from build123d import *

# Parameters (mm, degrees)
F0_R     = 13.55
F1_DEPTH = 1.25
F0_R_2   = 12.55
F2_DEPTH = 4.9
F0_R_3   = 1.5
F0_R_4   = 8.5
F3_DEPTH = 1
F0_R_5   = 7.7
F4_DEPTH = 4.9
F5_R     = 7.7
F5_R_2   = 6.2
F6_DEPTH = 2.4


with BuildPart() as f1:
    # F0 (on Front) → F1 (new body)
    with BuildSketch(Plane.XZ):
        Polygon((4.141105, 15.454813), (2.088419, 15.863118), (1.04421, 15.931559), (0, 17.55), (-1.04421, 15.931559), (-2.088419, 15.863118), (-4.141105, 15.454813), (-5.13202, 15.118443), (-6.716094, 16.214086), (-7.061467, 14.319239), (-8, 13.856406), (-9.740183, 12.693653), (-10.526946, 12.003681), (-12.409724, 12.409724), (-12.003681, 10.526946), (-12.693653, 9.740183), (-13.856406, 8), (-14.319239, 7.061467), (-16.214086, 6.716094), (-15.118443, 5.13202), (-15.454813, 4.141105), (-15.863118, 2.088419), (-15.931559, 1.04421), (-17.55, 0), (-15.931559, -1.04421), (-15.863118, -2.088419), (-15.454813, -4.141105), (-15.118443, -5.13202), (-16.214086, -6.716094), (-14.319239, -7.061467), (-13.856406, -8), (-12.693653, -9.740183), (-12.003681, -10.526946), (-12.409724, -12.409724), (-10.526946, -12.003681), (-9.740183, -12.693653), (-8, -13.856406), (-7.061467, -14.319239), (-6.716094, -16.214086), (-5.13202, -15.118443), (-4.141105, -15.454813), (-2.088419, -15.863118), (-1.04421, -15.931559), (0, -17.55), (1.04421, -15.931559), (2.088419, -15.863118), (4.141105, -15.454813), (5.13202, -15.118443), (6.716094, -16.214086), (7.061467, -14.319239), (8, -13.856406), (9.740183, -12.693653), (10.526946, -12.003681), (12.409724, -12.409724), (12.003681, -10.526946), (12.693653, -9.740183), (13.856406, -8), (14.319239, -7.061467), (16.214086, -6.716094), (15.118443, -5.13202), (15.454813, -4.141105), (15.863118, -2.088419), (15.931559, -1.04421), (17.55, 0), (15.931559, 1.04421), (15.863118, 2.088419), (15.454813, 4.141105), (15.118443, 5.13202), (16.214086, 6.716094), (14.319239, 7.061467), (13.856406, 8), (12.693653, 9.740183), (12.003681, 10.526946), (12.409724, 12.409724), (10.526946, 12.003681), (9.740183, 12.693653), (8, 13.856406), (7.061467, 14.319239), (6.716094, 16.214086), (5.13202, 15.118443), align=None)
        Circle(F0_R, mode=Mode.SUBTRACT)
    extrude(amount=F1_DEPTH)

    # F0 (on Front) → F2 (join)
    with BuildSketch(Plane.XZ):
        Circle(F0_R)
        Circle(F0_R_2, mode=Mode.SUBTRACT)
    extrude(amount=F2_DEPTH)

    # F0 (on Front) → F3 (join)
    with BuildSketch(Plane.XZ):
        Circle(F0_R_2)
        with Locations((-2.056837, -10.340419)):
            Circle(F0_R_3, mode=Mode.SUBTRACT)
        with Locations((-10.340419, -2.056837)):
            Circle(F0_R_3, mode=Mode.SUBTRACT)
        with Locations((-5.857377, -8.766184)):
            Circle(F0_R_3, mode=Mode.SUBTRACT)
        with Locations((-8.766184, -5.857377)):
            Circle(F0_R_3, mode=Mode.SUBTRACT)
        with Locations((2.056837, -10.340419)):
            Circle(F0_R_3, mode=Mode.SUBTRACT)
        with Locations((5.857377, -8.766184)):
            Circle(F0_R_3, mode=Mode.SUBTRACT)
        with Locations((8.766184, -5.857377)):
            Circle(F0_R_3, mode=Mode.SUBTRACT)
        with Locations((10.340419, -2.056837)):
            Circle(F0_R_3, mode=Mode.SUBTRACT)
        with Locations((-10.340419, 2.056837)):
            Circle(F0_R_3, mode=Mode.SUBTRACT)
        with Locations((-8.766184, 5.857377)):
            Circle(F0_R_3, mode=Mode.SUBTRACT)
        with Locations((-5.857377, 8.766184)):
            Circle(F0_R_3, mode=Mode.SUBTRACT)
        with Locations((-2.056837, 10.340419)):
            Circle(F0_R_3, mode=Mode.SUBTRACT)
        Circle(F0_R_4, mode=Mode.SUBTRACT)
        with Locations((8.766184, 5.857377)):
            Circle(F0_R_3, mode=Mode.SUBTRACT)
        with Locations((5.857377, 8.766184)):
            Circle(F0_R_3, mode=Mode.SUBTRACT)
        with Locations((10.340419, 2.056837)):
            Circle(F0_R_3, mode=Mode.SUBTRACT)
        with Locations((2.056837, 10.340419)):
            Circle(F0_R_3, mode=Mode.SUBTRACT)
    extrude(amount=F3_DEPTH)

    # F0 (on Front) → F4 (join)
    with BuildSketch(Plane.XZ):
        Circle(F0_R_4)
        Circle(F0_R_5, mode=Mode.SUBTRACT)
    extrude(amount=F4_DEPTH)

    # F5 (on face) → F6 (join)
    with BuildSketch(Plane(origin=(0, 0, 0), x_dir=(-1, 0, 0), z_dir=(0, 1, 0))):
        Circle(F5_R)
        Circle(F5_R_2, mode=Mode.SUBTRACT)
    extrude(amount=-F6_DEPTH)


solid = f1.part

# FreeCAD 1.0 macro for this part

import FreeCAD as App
import Part
import Sketcher
from FreeCAD import Vector
Q = App.Units.Quantity


def add_polygon(sketch, points):
    """Adds a closed chain of lines whose ends are joined by coincident constraints."""
    first, n = sketch.GeometryCount, len(points)
    for a, b in zip(points, points[1:] + points[:1]):
        sketch.addGeometry(Part.LineSegment(App.Vector(*a, 0), App.Vector(*b, 0)), False)
    for i in range(n):
        sketch.addConstraint(Sketcher.Constraint("Coincident", first + i, 2, first + (i + 1) % n, 1))

doc = App.newDocument("Part")
params = doc.addObject("Spreadsheet::Sheet", "Params")
for row, (alias, value) in enumerate([
    ("sketch1_diameter", "27.1 mm"),
    ("pad1_length", "1.25 mm"),
    ("sketch2_diameter", "27.1 mm"),
    ("sketch2_diameter2", "25.1 mm"),
    ("pad2_length", "4.9 mm"),
    ("sketch3_diameter", "3 mm"),
    ("sketch3_diameter2", "17 mm"),
    ("sketch3_diameter3", "25.1 mm"),
    ("pad3_length", "1 mm"),
    ("sketch4_diameter", "17 mm"),
    ("sketch4_diameter2", "15.4 mm"),
    ("pad4_length", "4.9 mm"),
    ("sketch5_diameter", "15.4 mm"),
    ("sketch5_diameter2", "12.4 mm"),
    ("pad5_length", "2.4 mm"),
], start=1):
    params.set(f"A{row}", alias)
    params.set(f"B{row}", "=" + value)
    params.setAlias(f"B{row}", alias)

body = doc.addObject("PartDesign::Body", "Body")

# Sketch on XZ plane
sketch1 = doc.addObject("Sketcher::SketchObject", "Sketch")
body.addObject(sketch1)
sketch1.AttachmentSupport = (doc.XZ_Plane, [""])
sketch1.MapMode = "FlatFace"
add_polygon(sketch1, [(4.1, 15.5), (2.1, 15.9), (1, 15.9), (0, 17.6), (-1, 15.9), (-2.1, 15.9), (-4.1, 15.5), (-5.1, 15.1), (-6.7, 16.2), (-7.1, 14.3), (-8, 13.9), (-9.7, 12.7), (-10.5, 12), (-12.4, 12.4), (-12, 10.5), (-12.7, 9.7), (-13.9, 8), (-14.3, 7.1), (-16.2, 6.7), (-15.1, 5.1), (-15.5, 4.1), (-15.9, 2.1), (-15.9, 1), (-17.6, 0), (-15.9, -1), (-15.9, -2.1), (-15.5, -4.1), (-15.1, -5.1), (-16.2, -6.7), (-14.3, -7.1), (-13.9, -8), (-12.7, -9.7), (-12, -10.5), (-12.4, -12.4), (-10.5, -12), (-9.7, -12.7), (-8, -13.9), (-7.1, -14.3), (-6.7, -16.2), (-5.1, -15.1), (-4.1, -15.5), (-2.1, -15.9), (-1, -15.9), (0, -17.6), (1, -15.9), (2.1, -15.9), (4.1, -15.5), (5.1, -15.1), (6.7, -16.2), (7.1, -14.3), (8, -13.9), (9.7, -12.7), (10.5, -12), (12.4, -12.4), (12, -10.5), (12.7, -9.7), (13.9, -8), (14.3, -7.1), (16.2, -6.7), (15.1, -5.1), (15.5, -4.1), (15.9, -2.1), (15.9, -1), (17.6, 0), (15.9, 1), (15.9, 2.1), (15.5, 4.1), (15.1, 5.1), (16.2, 6.7), (14.3, 7.1), (13.9, 8), (12.7, 9.7), (12, 10.5), (12.4, 12.4), (10.5, 12), (9.7, 12.7), (8, 13.9), (7.1, 14.3), (6.7, 16.2), (5.1, 15.1)])  # lines 0-79
sketch1.addGeometry(Part.Circle(Vector(0, 0, 0), Vector(0, 0, 1), 13.6), False)  # 80
sketch1.addConstraint(Sketcher.Constraint("Coincident", 80, 3, -1, 1))
sketch1.addConstraint(Sketcher.Constraint("Symmetric", 0, 2, 40, 2, -1, 1))
sketch1.addConstraint(Sketcher.Constraint("Symmetric", 1, 2, 41, 2, -1, 1))
sketch1.addConstraint(Sketcher.Constraint("Symmetric", 2, 2, 42, 2, -1, 1))
sketch1.addConstraint(Sketcher.Constraint("Symmetric", 3, 2, 43, 2, -1, 1))
sketch1.addConstraint(Sketcher.Constraint("Symmetric", 4, 2, 44, 2, -1, 1))
sketch1.addConstraint(Sketcher.Constraint("Symmetric", 5, 2, 45, 2, -1, 1))
sketch1.addConstraint(Sketcher.Constraint("Symmetric", 6, 2, 46, 2, -1, 1))
sketch1.addConstraint(Sketcher.Constraint("Symmetric", 7, 2, 47, 2, -1, 1))
sketch1.addConstraint(Sketcher.Constraint("Symmetric", 8, 2, 48, 2, -1, 1))
sketch1.addConstraint(Sketcher.Constraint("Symmetric", 9, 2, 49, 2, -1, 1))
sketch1.addConstraint(Sketcher.Constraint("Symmetric", 10, 2, 50, 2, -1, 1))
sketch1.addConstraint(Sketcher.Constraint("Symmetric", 11, 2, 51, 2, -1, 1))
sketch1.addConstraint(Sketcher.Constraint("Symmetric", 12, 2, 52, 2, -1, 1))
sketch1.addConstraint(Sketcher.Constraint("Symmetric", 13, 2, 53, 2, -1, 1))
sketch1.addConstraint(Sketcher.Constraint("Symmetric", 14, 2, 54, 2, -1, 1))
sketch1.addConstraint(Sketcher.Constraint("Symmetric", 15, 2, 55, 2, -1, 1))
sketch1.addConstraint(Sketcher.Constraint("Symmetric", 16, 2, 56, 2, -1, 1))
sketch1.addConstraint(Sketcher.Constraint("Symmetric", 17, 2, 57, 2, -1, 1))
sketch1.addConstraint(Sketcher.Constraint("Symmetric", 18, 2, 58, 2, -1, 1))
sketch1.addConstraint(Sketcher.Constraint("Symmetric", 19, 2, 59, 2, -1, 1))
sketch1.addConstraint(Sketcher.Constraint("Symmetric", 20, 2, 60, 2, -1, 1))
sketch1.addConstraint(Sketcher.Constraint("Symmetric", 21, 2, 61, 2, -1, 1))
sketch1.addConstraint(Sketcher.Constraint("Symmetric", 22, 2, 62, 2, -1, 1))
sketch1.addConstraint(Sketcher.Constraint("Symmetric", 23, 2, 63, 2, -1, 1))
sketch1.addConstraint(Sketcher.Constraint("Symmetric", 24, 2, 64, 2, -1, 1))
sketch1.addConstraint(Sketcher.Constraint("Symmetric", 25, 2, 65, 2, -1, 1))
sketch1.addConstraint(Sketcher.Constraint("Symmetric", 26, 2, 66, 2, -1, 1))
sketch1.addConstraint(Sketcher.Constraint("Symmetric", 27, 2, 67, 2, -1, 1))
sketch1.addConstraint(Sketcher.Constraint("Symmetric", 28, 2, 68, 2, -1, 1))
sketch1.addConstraint(Sketcher.Constraint("Symmetric", 29, 2, 69, 2, -1, 1))
sketch1.addConstraint(Sketcher.Constraint("Symmetric", 30, 2, 70, 2, -1, 1))
sketch1.addConstraint(Sketcher.Constraint("Symmetric", 31, 2, 71, 2, -1, 1))
sketch1.addConstraint(Sketcher.Constraint("Symmetric", 32, 2, 72, 2, -1, 1))
sketch1.addConstraint(Sketcher.Constraint("Symmetric", 33, 2, 73, 2, -1, 1))
sketch1.addConstraint(Sketcher.Constraint("Symmetric", 34, 2, 74, 2, -1, 1))
sketch1.addConstraint(Sketcher.Constraint("Symmetric", 35, 2, 75, 2, -1, 1))
sketch1.addConstraint(Sketcher.Constraint("Symmetric", 36, 2, 76, 2, -1, 1))
sketch1.addConstraint(Sketcher.Constraint("Symmetric", 37, 2, 77, 2, -1, 1))
sketch1.addConstraint(Sketcher.Constraint("Symmetric", 38, 2, 78, 2, -1, 1))
sketch1.addConstraint(Sketcher.Constraint("Symmetric", 39, 2, 79, 2, -1, 1))
sketch1.addConstraint(Sketcher.Constraint("Symmetric", 1, 2, 3, 2, -2))
sketch1.addConstraint(Sketcher.Constraint("Symmetric", 0, 2, 4, 2, -2))
sketch1.addConstraint(Sketcher.Constraint("Symmetric", 39, 2, 45, 2, -2))
sketch1.addConstraint(Sketcher.Constraint("Symmetric", 38, 2, 46, 2, -2))
sketch1.addConstraint(Sketcher.Constraint("Symmetric", 37, 2, 47, 2, -2))
sketch1.addConstraint(Sketcher.Constraint("Symmetric", 36, 2, 48, 2, -2))
sketch1.addConstraint(Sketcher.Constraint("Symmetric", 35, 2, 49, 2, -2))
sketch1.addConstraint(Sketcher.Constraint("Symmetric", 34, 2, 50, 2, -2))
sketch1.addConstraint(Sketcher.Constraint("Symmetric", 33, 2, 51, 2, -2))
sketch1.addConstraint(Sketcher.Constraint("Symmetric", 32, 2, 52, 2, -2))
sketch1.addConstraint(Sketcher.Constraint("Symmetric", 31, 2, 53, 2, -2))
sketch1.addConstraint(Sketcher.Constraint("Symmetric", 30, 2, 54, 2, -2))
sketch1.addConstraint(Sketcher.Constraint("Symmetric", 29, 2, 55, 2, -2))
sketch1.addConstraint(Sketcher.Constraint("Symmetric", 28, 2, 56, 2, -2))
sketch1.addConstraint(Sketcher.Constraint("Symmetric", 27, 2, 57, 2, -2))
sketch1.addConstraint(Sketcher.Constraint("Symmetric", 26, 2, 58, 2, -2))
sketch1.addConstraint(Sketcher.Constraint("Symmetric", 25, 2, 59, 2, -2))
sketch1.addConstraint(Sketcher.Constraint("Symmetric", 24, 2, 60, 2, -2))
sketch1.addConstraint(Sketcher.Constraint("Symmetric", 23, 2, 61, 2, -2))
sketch1.addConstraint(Sketcher.Constraint("PointOnObject", 2, 2, -2))
sketch1.addConstraint(Sketcher.Constraint("PointOnObject", 22, 2, -1))
sketch1.addConstraint(Sketcher.Constraint("Perpendicular", 0, 20))
sketch1.addConstraint(Sketcher.Constraint("Perpendicular", 1, 21))
sketch1.addConstraint(Sketcher.Constraint("Perpendicular", 2, 22))
sketch1.addConstraint(Sketcher.Constraint("Perpendicular", 6, 26))
sketch1.addConstraint(Sketcher.Constraint("Perpendicular", 7, 27))
sketch1.addConstraint(Sketcher.Constraint("Perpendicular", 8, 28))
sketch1.addConstraint(Sketcher.Constraint("Perpendicular", 9, 29))
sketch1.addConstraint(Sketcher.Constraint("Perpendicular", 10, 30))
sketch1.addConstraint(Sketcher.Constraint("Perpendicular", 11, 31))
sketch1.addConstraint(Sketcher.Constraint("Perpendicular", 12, 32))
sketch1.addConstraint(Sketcher.Constraint("Equal", 4, 6))
sketch1.addConstraint(Sketcher.Constraint("Equal", 3, 7))
sketch1.addConstraint(Sketcher.Constraint("Equal", 7, 8))
sketch1.addConstraint(Sketcher.Constraint("Equal", 6, 9))
sketch1.addConstraint(Sketcher.Constraint("Equal", 5, 10))
sketch1.addConstraint(Sketcher.Constraint("Equal", 9, 11))
sketch1.addConstraint(Sketcher.Constraint("Equal", 8, 12))
sketch1.addConstraint(Sketcher.Constraint("Equal", 12, 13))
sketch1.addConstraint(Sketcher.Constraint("Equal", 11, 14))
sketch1.addConstraint(Sketcher.Constraint("Equal", 10, 15))
sketch1.addConstraint(Sketcher.Constraint("Equal", 14, 16))
sketch1.addConstraint(Sketcher.Constraint("Equal", 13, 17))
sketch1.addConstraint(Sketcher.Constraint("Equal", 17, 18))
sketch1.addConstraint(Sketcher.Constraint("Equal", 16, 19))
sketch1.addConstraint(Sketcher.Constraint("Equal", 15, 20))
sketch1.addConstraint(Sketcher.Constraint("Equal", 19, 21))
sketch1.addConstraint(Sketcher.Constraint("Equal", 18, 22))
sketch1.addConstraint(Sketcher.Constraint("Diameter", 80, 27.1))
sketch1.addConstraint(Sketcher.Constraint("DistanceX", 9, 2, -1, 1, 8.0))
sketch1.addConstraint(Sketcher.Constraint("Angle", 0, Q("168.74999 deg")))
sketch1.addConstraint(Sketcher.Constraint("Angle", 1, Q("176.250004 deg")))
sketch1.addConstraint(Sketcher.Constraint("Angle", 6, Q("-161.250016 deg")))
sketch1.addConstraint(Sketcher.Constraint("Angle", 9, Q("-153.750013 deg")))
sketch1.addConstraint(Sketcher.Constraint("Angle", 10, Q("-146.250002 deg")))
sketch1.addConstraint(Sketcher.Constraint("DistanceY", -1, 1, 2, 2, 17.55))
sketch1.addConstraint(Sketcher.Constraint("Distance", 0, 2.092901))
sketch1.addConstraint(Sketcher.Constraint("Distance", 1, 1.04645))
sketch1.addConstraint(Sketcher.Constraint("DistanceX", -1, 1, 0, 2, 2.088419))
sketch1.addConstraint(Sketcher.Constraint("DistanceY", -1, 1, 1, 2, 15.931559))
sketch1.addConstraint(Sketcher.Constraint("DistanceY", -1, 1, 8, 2, 14.319239))
sketch1.addConstraint(Sketcher.Constraint("DistanceY", -1, 1, 11, 2, 12.003681))
sketch1.setExpression("Constraints[169]", "Params.sketch1_diameter")
pad1 = doc.addObject("PartDesign::Pad", "Pad")
body.addObject(pad1)
pad1.Profile = sketch1
pad1.setExpression("Length", "Params.pad1_length")

# Sketch on XZ plane
sketch2 = doc.addObject("Sketcher::SketchObject", "Sketch001")
body.addObject(sketch2)
sketch2.AttachmentSupport = (doc.XZ_Plane, [""])
sketch2.MapMode = "FlatFace"
sketch2.addGeometry(Part.Circle(Vector(0, 0, 0), Vector(0, 0, 1), 14), False)
sketch2.addGeometry(Part.Circle(Vector(0, 0, 0), Vector(0, 0, 1), 13), False)
sketch2.addConstraint(Sketcher.Constraint("Coincident", 0, 3, -1, 1))
sketch2.addConstraint(Sketcher.Constraint("Coincident", 1, 3, -1, 1))
sketch2.addConstraint(Sketcher.Constraint("Diameter", 0, 27.1))
sketch2.addConstraint(Sketcher.Constraint("Diameter", 1, 25.1))
sketch2.setExpression("Constraints[2]", "Params.sketch2_diameter")
sketch2.setExpression("Constraints[3]", "Params.sketch2_diameter2")
pad2 = doc.addObject("PartDesign::Pad", "Pad001")
body.addObject(pad2)
pad2.Profile = sketch2
pad2.setExpression("Length", "Params.pad2_length")

# Sketch on XZ plane
sketch3 = doc.addObject("Sketcher::SketchObject", "Sketch002")
body.addObject(sketch3)
sketch3.AttachmentSupport = (doc.XZ_Plane, [""])
sketch3.MapMode = "FlatFace"
sketch3.addGeometry(Part.Circle(Vector(0, 0, 0), Vector(0, 0, 1), 12.6), False)
sketch3.addGeometry(Part.Circle(Vector(-2.1, -10.3, 0), Vector(0, 0, 1), 1.5), False)
sketch3.addGeometry(Part.Circle(Vector(-5.9, -8.8, 0), Vector(0, 0, 1), 1.5), False)
sketch3.addGeometry(Part.Circle(Vector(-8.8, -5.9, 0), Vector(0, 0, 1), 1.5), False)
sketch3.addGeometry(Part.Circle(Vector(-10.3, -2.1, 0), Vector(0, 0, 1), 1.5), False)
sketch3.addGeometry(Part.Circle(Vector(2.1, -10.3, 0), Vector(0, 0, 1), 1.5), False)
sketch3.addGeometry(Part.Circle(Vector(5.9, -8.8, 0), Vector(0, 0, 1), 1.5), False)
sketch3.addGeometry(Part.Circle(Vector(8.8, -5.9, 0), Vector(0, 0, 1), 1.5), False)
sketch3.addGeometry(Part.Circle(Vector(10.3, -2.1, 0), Vector(0, 0, 1), 1.5), False)
sketch3.addGeometry(Part.Circle(Vector(-10.3, 2.1, 0), Vector(0, 0, 1), 1.5), False)
sketch3.addGeometry(Part.Circle(Vector(-8.8, 5.9, 0), Vector(0, 0, 1), 1.5), False)
sketch3.addGeometry(Part.Circle(Vector(-5.9, 8.8, 0), Vector(0, 0, 1), 1.5), False)
sketch3.addGeometry(Part.Circle(Vector(-2.1, 10.3, 0), Vector(0, 0, 1), 1.5), False)
sketch3.addGeometry(Part.Circle(Vector(0, 0, 0), Vector(0, 0, 1), 8.5), False)
sketch3.addGeometry(Part.Circle(Vector(10.3, 2.1, 0), Vector(0, 0, 1), 1.5), False)
sketch3.addGeometry(Part.Circle(Vector(8.8, 5.9, 0), Vector(0, 0, 1), 1.5), False)
sketch3.addGeometry(Part.Circle(Vector(5.9, 8.8, 0), Vector(0, 0, 1), 1.5), False)
sketch3.addGeometry(Part.Circle(Vector(2.1, 10.3, 0), Vector(0, 0, 1), 1.5), False)
sketch3.addConstraint(Sketcher.Constraint("Coincident", 0, 3, -1, 1))
sketch3.addConstraint(Sketcher.Constraint("Coincident", 13, 3, -1, 1))
sketch3.addConstraint(Sketcher.Constraint("Equal", 1, 2))
sketch3.addConstraint(Sketcher.Constraint("Equal", 2, 3))
sketch3.addConstraint(Sketcher.Constraint("Equal", 3, 4))
sketch3.addConstraint(Sketcher.Constraint("Equal", 4, 5))
sketch3.addConstraint(Sketcher.Constraint("Equal", 5, 6))
sketch3.addConstraint(Sketcher.Constraint("Equal", 6, 7))
sketch3.addConstraint(Sketcher.Constraint("Equal", 7, 8))
sketch3.addConstraint(Sketcher.Constraint("Equal", 8, 9))
sketch3.addConstraint(Sketcher.Constraint("Equal", 9, 10))
sketch3.addConstraint(Sketcher.Constraint("Equal", 10, 11))
sketch3.addConstraint(Sketcher.Constraint("Equal", 11, 12))
sketch3.addConstraint(Sketcher.Constraint("Equal", 12, 14))
sketch3.addConstraint(Sketcher.Constraint("Equal", 14, 15))
sketch3.addConstraint(Sketcher.Constraint("Equal", 15, 16))
sketch3.addConstraint(Sketcher.Constraint("Equal", 16, 17))
sketch3.addConstraint(Sketcher.Constraint("Symmetric", 8, 3, 9, 3, -1, 1))
sketch3.addConstraint(Sketcher.Constraint("Symmetric", 7, 3, 10, 3, -1, 1))
sketch3.addConstraint(Sketcher.Constraint("Symmetric", 6, 3, 11, 3, -1, 1))
sketch3.addConstraint(Sketcher.Constraint("Symmetric", 5, 3, 12, 3, -1, 1))
sketch3.addConstraint(Sketcher.Constraint("Symmetric", 4, 3, 14, 3, -1, 1))
sketch3.addConstraint(Sketcher.Constraint("Symmetric", 3, 3, 15, 3, -1, 1))
sketch3.addConstraint(Sketcher.Constraint("Symmetric", 2, 3, 16, 3, -1, 1))
sketch3.addConstraint(Sketcher.Constraint("Symmetric", 1, 3, 17, 3, -1, 1))
sketch3.addConstraint(Sketcher.Constraint("Symmetric", 1, 3, 5, 3, -2))
sketch3.addConstraint(Sketcher.Constraint("Symmetric", 2, 3, 6, 3, -2))
sketch3.addConstraint(Sketcher.Constraint("Symmetric", 3, 3, 7, 3, -2))
sketch3.addConstraint(Sketcher.Constraint("Symmetric", 4, 3, 8, 3, -2))
sketch3.addConstraint(Sketcher.Constraint("Diameter", 1, 3.0))
sketch3.addConstraint(Sketcher.Constraint("Diameter", 13, 17.0))
sketch3.addConstraint(Sketcher.Constraint("Diameter", 0, 25.1))
sketch3.addConstraint(Sketcher.Constraint("DistanceY", 1, 3, -1, 1, 10.340419))
sketch3.addConstraint(Sketcher.Constraint("DistanceX", 4, 3, -1, 1, 10.340419))
sketch3.addConstraint(Sketcher.Constraint("DistanceX", 2, 3, 1, 3, 3.80054))
sketch3.addConstraint(Sketcher.Constraint("DistanceY", 3, 3, 4, 3, 3.80054))
sketch3.addConstraint(Sketcher.Constraint("DistanceX", 3, 3, 5, 3, 10.823021))
sketch3.addConstraint(Sketcher.Constraint("DistanceY", 2, 3, 9, 3, 10.823021))
sketch3.addConstraint(Sketcher.Constraint("DistanceX", 1, 3, -1, 1, 2.056837))
sketch3.addConstraint(Sketcher.Constraint("DistanceY", 2, 3, -1, 1, 8.766184))
sketch3.setExpression("Constraints[29]", "Params.sketch3_diameter")
sketch3.setExpression("Constraints[30]", "Params.sketch3_diameter2")
sketch3.setExpression("Constraints[31]", "Params.sketch3_diameter3")
pad3 = doc.addObject("PartDesign::Pad", "Pad002")
body.addObject(pad3)
pad3.Profile = sketch3
pad3.setExpression("Length", "Params.pad3_length")

# Sketch on XZ plane
sketch4 = doc.addObject("Sketcher::SketchObject", "Sketch003")
body.addObject(sketch4)
sketch4.AttachmentSupport = (doc.XZ_Plane, [""])
sketch4.MapMode = "FlatFace"
sketch4.addGeometry(Part.Circle(Vector(0, 0, 0), Vector(0, 0, 1), 8), False)
sketch4.addGeometry(Part.Circle(Vector(0, 0, 0), Vector(0, 0, 1), 8), False)
sketch4.addConstraint(Sketcher.Constraint("Coincident", 0, 3, -1, 1))
sketch4.addConstraint(Sketcher.Constraint("Coincident", 1, 3, -1, 1))
sketch4.addConstraint(Sketcher.Constraint("Diameter", 0, 17.0))
sketch4.addConstraint(Sketcher.Constraint("Diameter", 1, 15.4))
sketch4.setExpression("Constraints[2]", "Params.sketch4_diameter")
sketch4.setExpression("Constraints[3]", "Params.sketch4_diameter2")
pad4 = doc.addObject("PartDesign::Pad", "Pad003")
body.addObject(pad4)
pad4.Profile = sketch4
pad4.setExpression("Length", "Params.pad4_length")

# Sketch on XZ plane
sketch5 = doc.addObject("Sketcher::SketchObject", "Sketch004")
body.addObject(sketch5)
sketch5.AttachmentSupport = (doc.XZ_Plane, [""])
sketch5.MapMode = "FlatFace"
sketch5.addGeometry(Part.Circle(Vector(0, 0, 0), Vector(0, 0, 1), 8), False)
sketch5.addGeometry(Part.Circle(Vector(0, 0, 0), Vector(0, 0, 1), 6), False)
sketch5.addConstraint(Sketcher.Constraint("Coincident", 0, 3, -1, 1))
sketch5.addConstraint(Sketcher.Constraint("Coincident", 1, 3, -1, 1))
sketch5.addConstraint(Sketcher.Constraint("Diameter", 0, 15.4))
sketch5.addConstraint(Sketcher.Constraint("Diameter", 1, 12.4))
sketch5.setExpression("Constraints[2]", "Params.sketch5_diameter")
sketch5.setExpression("Constraints[3]", "Params.sketch5_diameter2")
pad5 = doc.addObject("PartDesign::Pad", "Pad004")
body.addObject(pad5)
pad5.Profile = sketch5
pad5.setExpression("Length", "Params.pad5_length")

doc.recompute()
